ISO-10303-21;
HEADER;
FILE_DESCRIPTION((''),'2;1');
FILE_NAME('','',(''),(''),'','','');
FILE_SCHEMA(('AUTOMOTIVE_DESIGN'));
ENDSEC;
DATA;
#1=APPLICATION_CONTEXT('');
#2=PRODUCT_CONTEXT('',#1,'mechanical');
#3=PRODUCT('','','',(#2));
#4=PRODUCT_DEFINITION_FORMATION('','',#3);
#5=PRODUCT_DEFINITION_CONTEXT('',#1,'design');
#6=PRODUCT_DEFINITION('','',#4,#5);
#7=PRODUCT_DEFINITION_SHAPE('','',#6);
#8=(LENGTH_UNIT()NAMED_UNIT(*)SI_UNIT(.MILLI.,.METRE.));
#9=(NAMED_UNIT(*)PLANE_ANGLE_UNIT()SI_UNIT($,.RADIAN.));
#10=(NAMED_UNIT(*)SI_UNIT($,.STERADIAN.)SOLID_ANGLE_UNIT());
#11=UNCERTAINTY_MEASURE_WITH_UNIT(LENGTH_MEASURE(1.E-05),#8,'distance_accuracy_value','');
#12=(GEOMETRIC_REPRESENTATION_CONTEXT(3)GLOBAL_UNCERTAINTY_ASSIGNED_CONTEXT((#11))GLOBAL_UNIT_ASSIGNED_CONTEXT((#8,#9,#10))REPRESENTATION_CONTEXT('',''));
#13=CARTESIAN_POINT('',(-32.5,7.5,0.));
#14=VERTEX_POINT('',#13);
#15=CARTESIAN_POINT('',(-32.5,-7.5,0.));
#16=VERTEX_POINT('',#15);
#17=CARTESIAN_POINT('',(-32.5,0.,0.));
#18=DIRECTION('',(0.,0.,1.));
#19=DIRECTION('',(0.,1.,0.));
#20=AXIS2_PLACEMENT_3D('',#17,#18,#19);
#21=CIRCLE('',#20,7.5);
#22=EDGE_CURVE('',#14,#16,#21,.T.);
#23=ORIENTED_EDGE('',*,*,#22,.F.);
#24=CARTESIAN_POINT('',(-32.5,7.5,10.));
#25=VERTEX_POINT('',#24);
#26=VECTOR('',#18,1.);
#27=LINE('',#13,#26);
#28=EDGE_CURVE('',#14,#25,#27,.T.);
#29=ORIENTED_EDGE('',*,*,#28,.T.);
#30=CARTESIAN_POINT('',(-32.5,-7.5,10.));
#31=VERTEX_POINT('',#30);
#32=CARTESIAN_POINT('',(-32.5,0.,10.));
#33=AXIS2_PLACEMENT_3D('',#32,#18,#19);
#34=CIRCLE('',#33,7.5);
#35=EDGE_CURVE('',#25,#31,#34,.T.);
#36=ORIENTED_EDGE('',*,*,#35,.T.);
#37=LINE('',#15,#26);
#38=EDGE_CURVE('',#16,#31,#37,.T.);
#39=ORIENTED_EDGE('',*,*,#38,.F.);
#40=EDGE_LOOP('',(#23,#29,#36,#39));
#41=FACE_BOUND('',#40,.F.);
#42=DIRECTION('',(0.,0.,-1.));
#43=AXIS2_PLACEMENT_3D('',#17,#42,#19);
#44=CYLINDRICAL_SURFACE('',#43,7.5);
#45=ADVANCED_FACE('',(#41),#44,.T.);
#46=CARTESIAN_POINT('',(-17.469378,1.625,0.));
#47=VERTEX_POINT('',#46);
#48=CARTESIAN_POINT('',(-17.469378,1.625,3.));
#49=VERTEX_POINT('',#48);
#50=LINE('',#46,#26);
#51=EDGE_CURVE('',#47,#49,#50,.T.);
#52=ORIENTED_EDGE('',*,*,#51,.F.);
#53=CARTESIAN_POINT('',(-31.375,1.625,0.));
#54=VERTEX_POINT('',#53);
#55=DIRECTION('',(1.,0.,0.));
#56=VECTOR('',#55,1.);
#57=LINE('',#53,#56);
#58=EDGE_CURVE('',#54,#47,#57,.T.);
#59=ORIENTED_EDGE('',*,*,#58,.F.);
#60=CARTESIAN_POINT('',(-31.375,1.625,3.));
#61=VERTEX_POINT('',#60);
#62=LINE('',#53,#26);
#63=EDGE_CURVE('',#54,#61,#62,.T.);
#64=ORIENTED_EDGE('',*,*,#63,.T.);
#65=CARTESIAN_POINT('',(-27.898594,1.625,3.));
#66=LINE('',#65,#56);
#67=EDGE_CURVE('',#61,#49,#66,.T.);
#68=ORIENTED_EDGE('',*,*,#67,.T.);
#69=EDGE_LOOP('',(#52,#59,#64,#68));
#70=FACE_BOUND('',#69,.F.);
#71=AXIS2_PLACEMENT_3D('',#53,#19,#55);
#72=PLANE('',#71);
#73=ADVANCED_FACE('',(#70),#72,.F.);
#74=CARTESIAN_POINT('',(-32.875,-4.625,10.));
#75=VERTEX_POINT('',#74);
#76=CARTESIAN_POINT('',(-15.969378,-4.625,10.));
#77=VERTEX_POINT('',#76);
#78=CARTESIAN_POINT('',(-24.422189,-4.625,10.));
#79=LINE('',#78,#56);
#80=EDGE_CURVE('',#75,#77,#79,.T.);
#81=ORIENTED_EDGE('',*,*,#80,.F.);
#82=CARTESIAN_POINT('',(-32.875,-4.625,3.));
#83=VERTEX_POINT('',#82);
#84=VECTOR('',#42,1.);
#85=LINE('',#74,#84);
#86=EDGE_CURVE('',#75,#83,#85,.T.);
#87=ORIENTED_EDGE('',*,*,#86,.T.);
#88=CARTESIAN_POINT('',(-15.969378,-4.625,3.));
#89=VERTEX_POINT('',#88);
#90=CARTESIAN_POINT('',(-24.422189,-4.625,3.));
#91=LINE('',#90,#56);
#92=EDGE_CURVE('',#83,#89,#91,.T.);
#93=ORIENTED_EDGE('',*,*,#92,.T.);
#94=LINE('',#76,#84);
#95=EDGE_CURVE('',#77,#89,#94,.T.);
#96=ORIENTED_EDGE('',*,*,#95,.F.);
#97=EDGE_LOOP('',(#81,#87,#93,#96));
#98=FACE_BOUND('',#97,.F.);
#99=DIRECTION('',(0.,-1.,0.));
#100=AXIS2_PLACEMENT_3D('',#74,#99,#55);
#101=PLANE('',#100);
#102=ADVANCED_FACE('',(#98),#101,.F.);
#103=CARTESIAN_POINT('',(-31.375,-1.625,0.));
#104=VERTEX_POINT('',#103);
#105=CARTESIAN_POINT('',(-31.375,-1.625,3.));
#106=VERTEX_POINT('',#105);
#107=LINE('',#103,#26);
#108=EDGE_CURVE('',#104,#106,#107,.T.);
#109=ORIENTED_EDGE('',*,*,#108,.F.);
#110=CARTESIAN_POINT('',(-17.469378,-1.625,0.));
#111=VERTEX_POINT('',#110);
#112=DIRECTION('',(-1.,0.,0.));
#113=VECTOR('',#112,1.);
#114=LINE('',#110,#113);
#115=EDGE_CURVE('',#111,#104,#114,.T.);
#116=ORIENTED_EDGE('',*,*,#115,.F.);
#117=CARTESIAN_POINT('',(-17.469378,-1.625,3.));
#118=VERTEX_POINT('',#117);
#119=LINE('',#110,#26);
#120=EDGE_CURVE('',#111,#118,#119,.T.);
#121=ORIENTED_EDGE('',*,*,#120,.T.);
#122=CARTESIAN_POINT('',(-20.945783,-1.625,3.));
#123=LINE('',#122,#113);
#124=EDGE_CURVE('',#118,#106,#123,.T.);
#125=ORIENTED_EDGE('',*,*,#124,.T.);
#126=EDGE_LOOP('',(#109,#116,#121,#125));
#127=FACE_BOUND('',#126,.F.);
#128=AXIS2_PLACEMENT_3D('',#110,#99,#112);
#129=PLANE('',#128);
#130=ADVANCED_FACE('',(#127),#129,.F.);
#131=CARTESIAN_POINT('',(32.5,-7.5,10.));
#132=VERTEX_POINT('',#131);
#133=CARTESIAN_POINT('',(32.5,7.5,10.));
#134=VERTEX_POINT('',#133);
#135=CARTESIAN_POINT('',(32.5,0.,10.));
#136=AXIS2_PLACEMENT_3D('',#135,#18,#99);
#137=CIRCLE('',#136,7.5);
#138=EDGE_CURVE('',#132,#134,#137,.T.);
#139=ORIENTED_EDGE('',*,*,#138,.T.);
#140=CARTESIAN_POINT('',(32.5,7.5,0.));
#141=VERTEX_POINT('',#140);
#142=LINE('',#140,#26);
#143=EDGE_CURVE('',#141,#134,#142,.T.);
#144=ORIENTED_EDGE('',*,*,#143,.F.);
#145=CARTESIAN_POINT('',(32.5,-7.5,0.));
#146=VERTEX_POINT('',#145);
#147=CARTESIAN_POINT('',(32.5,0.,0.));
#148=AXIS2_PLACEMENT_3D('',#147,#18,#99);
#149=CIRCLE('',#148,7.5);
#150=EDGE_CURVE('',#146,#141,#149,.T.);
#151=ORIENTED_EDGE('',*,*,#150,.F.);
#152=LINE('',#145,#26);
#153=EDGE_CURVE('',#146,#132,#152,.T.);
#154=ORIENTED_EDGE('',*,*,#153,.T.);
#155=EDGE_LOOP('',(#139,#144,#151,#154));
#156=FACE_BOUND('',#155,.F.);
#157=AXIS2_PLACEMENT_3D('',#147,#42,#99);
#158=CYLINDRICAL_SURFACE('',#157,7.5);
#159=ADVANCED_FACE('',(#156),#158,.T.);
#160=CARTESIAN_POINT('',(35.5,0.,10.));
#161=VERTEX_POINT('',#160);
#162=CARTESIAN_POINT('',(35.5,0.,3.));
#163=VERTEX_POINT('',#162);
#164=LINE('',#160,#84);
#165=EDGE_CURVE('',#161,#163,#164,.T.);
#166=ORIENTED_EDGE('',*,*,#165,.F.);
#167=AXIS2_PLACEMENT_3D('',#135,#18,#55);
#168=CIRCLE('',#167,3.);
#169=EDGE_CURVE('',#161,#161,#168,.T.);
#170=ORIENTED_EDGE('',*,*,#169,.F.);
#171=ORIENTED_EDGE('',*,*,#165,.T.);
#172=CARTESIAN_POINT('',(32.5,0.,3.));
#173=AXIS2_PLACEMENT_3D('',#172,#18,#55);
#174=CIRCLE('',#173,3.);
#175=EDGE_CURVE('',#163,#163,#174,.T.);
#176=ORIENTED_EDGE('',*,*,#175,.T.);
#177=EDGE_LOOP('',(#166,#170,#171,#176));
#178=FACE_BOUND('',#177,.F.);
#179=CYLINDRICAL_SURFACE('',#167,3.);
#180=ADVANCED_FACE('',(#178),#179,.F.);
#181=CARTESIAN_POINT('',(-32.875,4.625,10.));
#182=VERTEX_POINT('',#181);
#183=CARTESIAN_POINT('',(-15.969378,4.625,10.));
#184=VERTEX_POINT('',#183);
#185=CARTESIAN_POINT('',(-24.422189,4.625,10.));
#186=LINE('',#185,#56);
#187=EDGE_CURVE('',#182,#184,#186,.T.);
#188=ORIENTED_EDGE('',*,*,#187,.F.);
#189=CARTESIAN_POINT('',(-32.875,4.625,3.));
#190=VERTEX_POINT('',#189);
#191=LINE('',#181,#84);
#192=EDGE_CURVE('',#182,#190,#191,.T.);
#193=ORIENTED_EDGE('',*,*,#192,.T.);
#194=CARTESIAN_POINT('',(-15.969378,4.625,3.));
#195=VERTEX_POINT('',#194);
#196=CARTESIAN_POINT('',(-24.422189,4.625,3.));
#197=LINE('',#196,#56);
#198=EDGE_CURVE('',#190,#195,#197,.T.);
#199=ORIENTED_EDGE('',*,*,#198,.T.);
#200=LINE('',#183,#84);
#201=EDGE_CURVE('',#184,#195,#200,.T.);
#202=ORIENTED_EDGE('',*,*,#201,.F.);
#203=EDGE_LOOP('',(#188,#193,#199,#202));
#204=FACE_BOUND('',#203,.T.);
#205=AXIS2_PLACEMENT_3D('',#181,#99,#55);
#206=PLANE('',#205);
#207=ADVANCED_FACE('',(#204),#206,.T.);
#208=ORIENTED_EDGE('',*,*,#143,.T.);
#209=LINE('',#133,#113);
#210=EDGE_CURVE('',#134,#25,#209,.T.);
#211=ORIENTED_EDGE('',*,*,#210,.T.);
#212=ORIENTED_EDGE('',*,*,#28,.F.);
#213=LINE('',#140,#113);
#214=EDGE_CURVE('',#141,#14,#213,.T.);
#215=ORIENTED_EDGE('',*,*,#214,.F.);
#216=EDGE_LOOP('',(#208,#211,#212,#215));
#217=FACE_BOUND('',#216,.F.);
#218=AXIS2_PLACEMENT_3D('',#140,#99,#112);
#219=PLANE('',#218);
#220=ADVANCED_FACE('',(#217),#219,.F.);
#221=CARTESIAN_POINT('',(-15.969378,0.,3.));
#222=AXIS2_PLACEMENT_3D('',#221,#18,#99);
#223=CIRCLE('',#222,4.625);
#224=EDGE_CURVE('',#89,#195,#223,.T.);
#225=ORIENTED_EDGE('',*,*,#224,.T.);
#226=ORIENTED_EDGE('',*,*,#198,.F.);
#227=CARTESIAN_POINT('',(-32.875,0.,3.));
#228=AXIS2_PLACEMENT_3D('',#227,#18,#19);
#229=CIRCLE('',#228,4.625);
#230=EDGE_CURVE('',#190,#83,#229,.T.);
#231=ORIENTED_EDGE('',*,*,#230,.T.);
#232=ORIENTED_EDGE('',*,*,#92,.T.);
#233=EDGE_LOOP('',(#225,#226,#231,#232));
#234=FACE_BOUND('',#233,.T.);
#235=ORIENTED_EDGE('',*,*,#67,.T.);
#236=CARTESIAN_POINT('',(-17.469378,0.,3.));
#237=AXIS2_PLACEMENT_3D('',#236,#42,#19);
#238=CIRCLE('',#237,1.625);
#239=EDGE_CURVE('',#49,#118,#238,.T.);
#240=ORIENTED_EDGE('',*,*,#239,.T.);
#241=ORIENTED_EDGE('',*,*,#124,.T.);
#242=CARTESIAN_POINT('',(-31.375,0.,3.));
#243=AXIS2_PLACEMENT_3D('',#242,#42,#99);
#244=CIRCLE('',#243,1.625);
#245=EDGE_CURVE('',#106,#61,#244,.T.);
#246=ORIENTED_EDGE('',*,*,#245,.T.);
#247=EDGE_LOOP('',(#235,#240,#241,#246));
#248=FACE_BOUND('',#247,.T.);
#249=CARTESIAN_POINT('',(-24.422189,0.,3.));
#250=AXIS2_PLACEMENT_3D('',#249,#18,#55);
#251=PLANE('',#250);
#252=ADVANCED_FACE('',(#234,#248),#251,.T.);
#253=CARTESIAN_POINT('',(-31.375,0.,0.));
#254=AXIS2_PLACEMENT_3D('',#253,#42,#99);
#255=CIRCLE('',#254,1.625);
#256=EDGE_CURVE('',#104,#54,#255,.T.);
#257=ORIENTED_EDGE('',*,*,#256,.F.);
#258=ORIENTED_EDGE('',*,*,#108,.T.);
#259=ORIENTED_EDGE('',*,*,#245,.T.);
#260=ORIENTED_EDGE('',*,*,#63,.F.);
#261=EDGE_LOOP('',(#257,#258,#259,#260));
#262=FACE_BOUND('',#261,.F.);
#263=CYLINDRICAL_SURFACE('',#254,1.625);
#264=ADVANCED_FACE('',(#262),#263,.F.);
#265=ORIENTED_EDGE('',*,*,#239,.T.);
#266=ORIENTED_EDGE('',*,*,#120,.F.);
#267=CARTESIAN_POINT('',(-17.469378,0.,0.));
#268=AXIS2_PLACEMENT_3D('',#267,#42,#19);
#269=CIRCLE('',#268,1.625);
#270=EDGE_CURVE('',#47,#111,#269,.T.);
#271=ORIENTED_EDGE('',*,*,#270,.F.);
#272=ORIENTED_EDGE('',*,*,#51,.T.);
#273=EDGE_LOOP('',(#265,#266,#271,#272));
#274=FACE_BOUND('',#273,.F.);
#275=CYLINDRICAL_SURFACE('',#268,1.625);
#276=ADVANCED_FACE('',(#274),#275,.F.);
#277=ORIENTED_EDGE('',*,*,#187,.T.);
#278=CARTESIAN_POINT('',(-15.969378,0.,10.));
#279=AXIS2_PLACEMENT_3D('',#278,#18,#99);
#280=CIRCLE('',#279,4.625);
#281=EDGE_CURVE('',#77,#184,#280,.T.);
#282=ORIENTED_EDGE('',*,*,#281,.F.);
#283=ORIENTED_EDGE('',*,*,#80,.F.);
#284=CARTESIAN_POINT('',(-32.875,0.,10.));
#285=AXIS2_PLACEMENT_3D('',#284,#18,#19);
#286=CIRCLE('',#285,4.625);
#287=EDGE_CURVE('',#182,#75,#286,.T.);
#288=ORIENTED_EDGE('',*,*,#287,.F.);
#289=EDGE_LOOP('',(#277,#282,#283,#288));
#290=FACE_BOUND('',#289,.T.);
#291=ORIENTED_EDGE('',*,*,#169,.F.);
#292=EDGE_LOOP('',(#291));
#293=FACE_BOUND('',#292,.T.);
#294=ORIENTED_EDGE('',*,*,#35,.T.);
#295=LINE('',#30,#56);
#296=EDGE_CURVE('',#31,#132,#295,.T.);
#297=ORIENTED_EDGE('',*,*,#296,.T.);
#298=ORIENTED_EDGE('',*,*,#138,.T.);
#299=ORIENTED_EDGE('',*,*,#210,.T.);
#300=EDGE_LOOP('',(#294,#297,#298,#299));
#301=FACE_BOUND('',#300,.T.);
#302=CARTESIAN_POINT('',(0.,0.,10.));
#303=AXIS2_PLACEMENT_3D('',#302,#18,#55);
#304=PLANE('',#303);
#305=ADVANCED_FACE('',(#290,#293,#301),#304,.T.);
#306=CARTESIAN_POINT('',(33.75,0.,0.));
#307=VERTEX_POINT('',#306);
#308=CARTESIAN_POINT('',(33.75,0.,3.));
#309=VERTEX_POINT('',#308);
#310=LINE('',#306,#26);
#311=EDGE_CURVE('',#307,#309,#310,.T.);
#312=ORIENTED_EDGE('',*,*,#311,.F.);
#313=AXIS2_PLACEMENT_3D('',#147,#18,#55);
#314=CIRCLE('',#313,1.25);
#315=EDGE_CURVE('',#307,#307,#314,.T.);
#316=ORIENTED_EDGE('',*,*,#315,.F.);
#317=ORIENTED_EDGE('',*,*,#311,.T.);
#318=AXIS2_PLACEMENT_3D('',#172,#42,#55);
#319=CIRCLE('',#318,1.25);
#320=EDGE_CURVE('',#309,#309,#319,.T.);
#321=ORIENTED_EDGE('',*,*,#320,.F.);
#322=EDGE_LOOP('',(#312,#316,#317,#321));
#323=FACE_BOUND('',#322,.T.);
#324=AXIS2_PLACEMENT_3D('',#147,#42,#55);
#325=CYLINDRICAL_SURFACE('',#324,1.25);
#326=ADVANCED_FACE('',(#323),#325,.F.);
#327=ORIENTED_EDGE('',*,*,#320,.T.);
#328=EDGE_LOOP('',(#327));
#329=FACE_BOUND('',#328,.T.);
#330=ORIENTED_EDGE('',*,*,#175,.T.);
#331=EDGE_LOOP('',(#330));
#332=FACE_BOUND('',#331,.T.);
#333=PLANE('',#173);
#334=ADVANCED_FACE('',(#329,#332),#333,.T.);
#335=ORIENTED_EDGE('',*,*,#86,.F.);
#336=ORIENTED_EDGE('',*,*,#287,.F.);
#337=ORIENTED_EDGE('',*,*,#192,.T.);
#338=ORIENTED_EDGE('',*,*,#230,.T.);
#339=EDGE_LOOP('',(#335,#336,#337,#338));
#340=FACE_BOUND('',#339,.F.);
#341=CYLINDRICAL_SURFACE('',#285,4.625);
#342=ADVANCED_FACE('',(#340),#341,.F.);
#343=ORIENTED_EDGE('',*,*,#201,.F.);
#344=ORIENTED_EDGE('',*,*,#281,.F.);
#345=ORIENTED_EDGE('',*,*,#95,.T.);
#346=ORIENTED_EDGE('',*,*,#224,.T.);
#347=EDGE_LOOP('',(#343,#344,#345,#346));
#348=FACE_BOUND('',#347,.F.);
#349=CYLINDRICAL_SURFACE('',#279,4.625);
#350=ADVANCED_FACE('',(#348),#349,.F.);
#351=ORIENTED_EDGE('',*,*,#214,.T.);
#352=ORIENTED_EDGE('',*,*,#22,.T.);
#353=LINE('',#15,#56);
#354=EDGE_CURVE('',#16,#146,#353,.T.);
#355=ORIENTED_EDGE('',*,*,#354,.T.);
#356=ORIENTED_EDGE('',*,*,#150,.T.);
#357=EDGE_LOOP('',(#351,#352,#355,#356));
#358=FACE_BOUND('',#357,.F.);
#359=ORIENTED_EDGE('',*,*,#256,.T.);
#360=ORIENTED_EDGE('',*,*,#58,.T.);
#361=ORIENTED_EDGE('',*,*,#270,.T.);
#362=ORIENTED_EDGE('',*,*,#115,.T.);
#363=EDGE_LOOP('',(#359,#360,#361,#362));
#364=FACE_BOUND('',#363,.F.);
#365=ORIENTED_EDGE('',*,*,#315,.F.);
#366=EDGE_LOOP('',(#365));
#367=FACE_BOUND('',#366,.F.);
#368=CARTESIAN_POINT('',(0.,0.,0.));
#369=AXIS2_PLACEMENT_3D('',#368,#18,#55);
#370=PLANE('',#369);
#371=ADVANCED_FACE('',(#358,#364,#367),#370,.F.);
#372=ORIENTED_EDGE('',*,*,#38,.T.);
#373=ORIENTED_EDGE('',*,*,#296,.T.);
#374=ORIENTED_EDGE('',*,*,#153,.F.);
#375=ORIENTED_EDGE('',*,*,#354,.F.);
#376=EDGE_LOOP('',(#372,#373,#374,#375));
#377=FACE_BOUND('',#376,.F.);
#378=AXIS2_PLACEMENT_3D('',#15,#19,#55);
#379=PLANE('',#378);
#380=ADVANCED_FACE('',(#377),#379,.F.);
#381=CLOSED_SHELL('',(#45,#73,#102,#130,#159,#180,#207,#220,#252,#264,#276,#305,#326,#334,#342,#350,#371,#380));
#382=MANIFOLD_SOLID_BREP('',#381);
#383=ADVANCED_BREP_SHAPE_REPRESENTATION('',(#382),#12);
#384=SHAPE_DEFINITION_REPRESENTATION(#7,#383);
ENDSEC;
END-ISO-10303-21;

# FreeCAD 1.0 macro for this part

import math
import FreeCAD as App
import Part
import Sketcher
from FreeCAD import Vector

doc = App.newDocument("Part")
params = doc.addObject("Spreadsheet::Sheet", "Params")
for row, (alias, value) in enumerate([
    ("sketch1_diameter", "2.5 mm"),
    ("sketch1_radius", "7.5 mm"),
    ("sketch1_width", "65 mm"),
    ("pad1_length", "10 mm"),
    ("sketch2_diameter", "6 mm"),
    ("pocket1_length", "7 mm"),
], start=1):
    params.set(f"A{row}", alias)
    params.set(f"B{row}", "=" + value)
    params.setAlias(f"B{row}", alias)

body = doc.addObject("PartDesign::Body", "Body")

# Sketch on XY plane
sketch1 = body.newObject("Sketcher::SketchObject", "Sketch")
sketch1.AttachmentSupport = (doc.getObject("XY_Plane"), [""])
sketch1.MapMode = "FlatFace"
sketch1.addGeometry([
    Part.ArcOfCircle(Part.Circle(Vector(32.5, 0, 0), Vector(0, 0, 1), 7.5), math.radians(-90), math.radians(90)),  # 0
    Part.LineSegment(Vector(32.5, 7.5, 0), Vector(-32.5, 7.5, 0)),  # 1
    Part.ArcOfCircle(Part.Circle(Vector(-32.5, 0, 0), Vector(0, 0, 1), 7.5), math.radians(90), math.radians(270)),  # 2
    Part.LineSegment(Vector(-32.5, -7.5, 0), Vector(32.5, -7.5, 0)),  # 3
    Part.LineSegment(Vector(-31.375, 1.625, 0), Vector(-17.469378, 1.625, 0)),  # 4
    Part.ArcOfCircle(Part.Circle(Vector(-17.469378, 0, 0), Vector(0, 0, 1), 1.625), math.radians(-90), math.radians(90)),  # 5
    Part.LineSegment(Vector(-17.469378, -1.625, 0), Vector(-31.375, -1.625, 0)),  # 6
    Part.ArcOfCircle(Part.Circle(Vector(-31.375, 0, 0), Vector(0, 0, 1), 1.625), math.radians(90), math.radians(270)),  # 7
    Part.Circle(Vector(32.5, 0, 0), Vector(0, 0, 1), 1.25),  # 8
], False)
sketch1.addConstraint([
    Sketcher.Constraint("Tangent", 0, 2, 1, 1),
    Sketcher.Constraint("Tangent", 1, 2, 2, 1),
    Sketcher.Constraint("Tangent", 2, 2, 3, 1),
    Sketcher.Constraint("Tangent", 3, 2, 0, 1),
    Sketcher.Constraint("Tangent", 4, 2, 5, 2),
    Sketcher.Constraint("Tangent", 5, 1, 6, 1),
    Sketcher.Constraint("Tangent", 6, 2, 7, 2),
    Sketcher.Constraint("Tangent", 7, 1, 4, 1),
    Sketcher.Constraint("Horizontal", 1),
    Sketcher.Constraint("Horizontal", 3),
    Sketcher.Constraint("Horizontal", 4),
    Sketcher.Constraint("Horizontal", 6),
    Sketcher.Constraint("Coincident", 8, 3, 0, 3),
    Sketcher.Constraint("Symmetric", 0, 3, 2, 3, -1, 1),
    Sketcher.Constraint("PointOnObject", 5, 3, -1),
    Sketcher.Constraint("Diameter", 8, 2.5),
    Sketcher.Constraint("Radius", 0, 7.5),
    Sketcher.Constraint("DistanceX", 1, 2, 1, 1, 65.0),
    Sketcher.Constraint("Radius", 5, 1.625),
    Sketcher.Constraint("DistanceX", 7, 3, -1, 1, 31.375),
    Sketcher.Constraint("DistanceX", 4, 1, 4, 2, 13.905622),
])
sketch1.setExpression("Constraints[15]", "Params.sketch1_diameter")
sketch1.setExpression("Constraints[16]", "Params.sketch1_radius")
sketch1.setExpression("Constraints[17]", "Params.sketch1_width")
pad1 = body.newObject("PartDesign::Pad", "Pad")
pad1.Profile = sketch1
pad1.setExpression("Length", "Params.pad1_length")

# Sketch on XY plane
sketch2 = body.newObject("Sketcher::SketchObject", "Sketch001")
sketch2.AttachmentSupport = (doc.getObject("XY_Plane"), [""])
sketch2.MapMode = "FlatFace"
sketch2.AttachmentOffset = App.Placement(Vector(0, 0, 10), App.Rotation())
sketch2.addGeometry([
    Part.Circle(Vector(32.5, 0, 0), Vector(0, 0, 1), 3),  # 0
    Part.LineSegment(Vector(-32.875, -4.625, 0), Vector(-15.969378, -4.625, 0)),  # 1
    Part.ArcOfCircle(Part.Circle(Vector(-15.969378, 0, 0), Vector(0, 0, 1), 4.625), math.radians(-90), math.radians(90)),  # 2
    Part.LineSegment(Vector(-15.969378, 4.625, 0), Vector(-32.875, 4.625, 0)),  # 3
    Part.ArcOfCircle(Part.Circle(Vector(-32.875, 0, 0), Vector(0, 0, 1), 4.625), math.radians(90), math.radians(270)),  # 4
], False)
sketch2.addConstraint([
    Sketcher.Constraint("Tangent", 1, 2, 2, 1),
    Sketcher.Constraint("Tangent", 2, 2, 3, 1),
    Sketcher.Constraint("Tangent", 3, 2, 4, 1),
    Sketcher.Constraint("Tangent", 4, 2, 1, 1),
    Sketcher.Constraint("Horizontal", 1),
    Sketcher.Constraint("Horizontal", 3),
    Sketcher.Constraint("PointOnObject", 0, 3, -1),
    Sketcher.Constraint("PointOnObject", 2, 3, -1),
    Sketcher.Constraint("Diameter", 0, 6.0),
    Sketcher.Constraint("Radius", 2, 4.625),
    Sketcher.Constraint("DistanceX", -1, 1, 0, 3, 32.5),
    Sketcher.Constraint("DistanceX", 4, 3, -1, 1, 32.875),
    Sketcher.Constraint("DistanceX", 1, 1, 1, 2, 16.905622),
])
sketch2.setExpression("Constraints[8]", "Params.sketch2_diameter")
pocket1 = body.newObject("PartDesign::Pocket", "Pocket")
pocket1.Profile = sketch2
pocket1.setExpression("Length", "Params.pocket1_length")

doc.recompute()
